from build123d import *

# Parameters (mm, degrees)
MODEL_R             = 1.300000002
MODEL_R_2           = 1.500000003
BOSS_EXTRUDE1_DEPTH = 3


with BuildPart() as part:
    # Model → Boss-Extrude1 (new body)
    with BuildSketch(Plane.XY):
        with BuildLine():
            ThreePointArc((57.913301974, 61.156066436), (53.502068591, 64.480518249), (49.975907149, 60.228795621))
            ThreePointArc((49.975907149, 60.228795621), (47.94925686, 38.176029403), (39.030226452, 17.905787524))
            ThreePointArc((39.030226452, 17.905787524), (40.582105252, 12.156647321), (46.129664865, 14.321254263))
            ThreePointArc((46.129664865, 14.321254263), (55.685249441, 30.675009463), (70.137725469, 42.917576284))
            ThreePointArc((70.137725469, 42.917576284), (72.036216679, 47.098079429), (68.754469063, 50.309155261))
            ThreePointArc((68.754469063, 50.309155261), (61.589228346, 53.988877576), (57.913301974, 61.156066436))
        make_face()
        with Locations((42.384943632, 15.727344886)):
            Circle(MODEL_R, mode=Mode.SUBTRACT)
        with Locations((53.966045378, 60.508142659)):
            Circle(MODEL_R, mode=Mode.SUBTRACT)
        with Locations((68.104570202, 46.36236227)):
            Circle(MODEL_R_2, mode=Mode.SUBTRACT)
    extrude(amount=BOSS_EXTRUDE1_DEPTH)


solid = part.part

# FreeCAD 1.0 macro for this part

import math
import FreeCAD as App
import Part
import Sketcher

V = App.Vector

doc = App.newDocument("Part")
body = doc.addObject("PartDesign::Body", "Body")

sketch1 = doc.addObject("Sketcher::SketchObject", "Sketch")
body.addObject(sketch1)
sketch1.AttachmentSupport = (doc.XY_Plane, [""])
sketch1.MapMode = "FlatFace"
sketch1.addGeometry(Part.ArcOfCircle(Part.Circle(V(53.966207, 60.507515, 0), V(0, 0, 1), 4.000022), math.radians(9.330952), math.radians(183.99558)), False)
sketch1.addGeometry(Part.ArcOfCircle(Part.Circle(V(-18.74548, 55.424787, 0), V(0, 0, 1), 68.889096), math.radians(-32.999314), math.radians(3.99879)), False)
sketch1.addGeometry(Part.ArcOfCircle(Part.Circle(V(42.384948, 15.727314, 0), V(0, 0, 1), 3.999988), math.radians(147.001305), math.radians(339.41993)), False)
sketch1.addGeometry(Part.ArcOfCircle(Part.Circle(V(98.657877, -5.402688, 0), V(0, 0, 1), 56.109242), math.radians(120.550452), math.radians(159.419227)), False)
sketch1.addGeometry(Part.ArcOfCircle(Part.Circle(V(68.104433, 46.362287, 0), V(0, 0, 1), 4.000039), math.radians(-59.448133), math.radians(80.647534)), False)
sketch1.addGeometry(Part.ArcOfCircle(Part.Circle(V(70.891256, 63.285979, 0), V(0, 0, 1), 13.151571), math.radians(-170.67983), math.radians(-99.35052)), False)
sketch1.addGeometry(Part.Circle(V(42.384944, 15.727345, 0), V(0, 0, 1), 1.3), False)
sketch1.addGeometry(Part.Circle(V(53.966045, 60.508143, 0), V(0, 0, 1), 1.3), False)
sketch1.addGeometry(Part.Circle(V(68.10457, 46.362362, 0), V(0, 0, 1), 1.5), False)
sketch1.addConstraint(Sketcher.Constraint("Coincident", 0, 2, 1, 2))
sketch1.addConstraint(Sketcher.Constraint("Coincident", 1, 1, 2, 1))
sketch1.addConstraint(Sketcher.Constraint("Coincident", 2, 2, 3, 2))
sketch1.addConstraint(Sketcher.Constraint("Coincident", 3, 1, 4, 1))
sketch1.addConstraint(Sketcher.Constraint("Coincident", 4, 2, 5, 2))
sketch1.addConstraint(Sketcher.Constraint("Coincident", 5, 1, 0, 1))
sketch1.addConstraint(Sketcher.Constraint("Equal", 6, 7))
sketch1.addConstraint(Sketcher.Constraint("Diameter", 8, 3.0))
sketch1.addConstraint(Sketcher.Constraint("Diameter", 6, 2.6))
sketch1.addConstraint(Sketcher.Constraint("Radius", 2, 3.999988))
sketch1.addConstraint(Sketcher.Constraint("Radius", 3, 56.109242))
sketch1.addConstraint(Sketcher.Constraint("Radius", 4, 4.000039))
sketch1.addConstraint(Sketcher.Constraint("Radius", 5, 13.151571))
sketch1.addConstraint(Sketcher.Constraint("Radius", 0, 4.000022))
sketch1.addConstraint(Sketcher.Constraint("Radius", 1, 68.889096))
sketch1.addConstraint(Sketcher.Constraint("DistanceX", -1, 1, 5, 1, 57.913302))
sketch1.addConstraint(Sketcher.Constraint("DistanceY", 2, 3, 0, 3, 44.780201))
sketch1.addConstraint(Sketcher.Constraint("DistanceY", 4, 3, 1, 3, 9.062499))
sketch1.addConstraint(Sketcher.Constraint("DistanceX", 6, 3, 7, 3, 11.581102))
sketch1.addConstraint(Sketcher.Constraint("DistanceX", 0, 2, 0, 3, 3.9903))
sketch1.addConstraint(Sketcher.Constraint("DistanceY", 1, 1, 4, 3, 28.4565))
sketch1.addConstraint(Sketcher.Constraint("DistanceX", 8, 3, 4, 2, 0.649899))
sketch1.addConstraint(Sketcher.Constraint("DistanceX", 1, 3, -1, 1, 18.74548))
sketch1.addConstraint(Sketcher.Constraint("DistanceX", -1, 1, 2, 3, 42.384948))
sketch1.addConstraint(Sketcher.Constraint("DistanceY", 3, 3, -1, 1, 5.402688))
sketch1.addConstraint(Sketcher.Constraint("DistanceY", -1, 1, 5, 3, 63.285979))
sketch1.addConstraint(Sketcher.Constraint("DistanceX", -1, 1, 8, 3, 68.10457))
sketch1.addConstraint(Sketcher.Constraint("DistanceX", 6, 3, 4, 3, 25.719489))
sketch1.addConstraint(Sketcher.Constraint("DistanceY", 6, 3, 0, 3, 44.78017))
sketch1.addConstraint(Sketcher.Constraint("DistanceY", 2, 3, 7, 3, 44.780828))
sketch1.addConstraint(Sketcher.Constraint("DistanceY", 8, 3, 7, 3, 14.14578))
sketch1.addConstraint(Sketcher.Constraint("DistanceY", 2, 2, 2, 3, 1.40606))
sketch1.addConstraint(Sketcher.Constraint("DistanceY", 3, 1, 4, 3, 3.444711))
pad1 = doc.addObject("PartDesign::Pad", "Pad")
body.addObject(pad1)
pad1.Profile = sketch1
pad1.Length = 3

doc.recompute()
